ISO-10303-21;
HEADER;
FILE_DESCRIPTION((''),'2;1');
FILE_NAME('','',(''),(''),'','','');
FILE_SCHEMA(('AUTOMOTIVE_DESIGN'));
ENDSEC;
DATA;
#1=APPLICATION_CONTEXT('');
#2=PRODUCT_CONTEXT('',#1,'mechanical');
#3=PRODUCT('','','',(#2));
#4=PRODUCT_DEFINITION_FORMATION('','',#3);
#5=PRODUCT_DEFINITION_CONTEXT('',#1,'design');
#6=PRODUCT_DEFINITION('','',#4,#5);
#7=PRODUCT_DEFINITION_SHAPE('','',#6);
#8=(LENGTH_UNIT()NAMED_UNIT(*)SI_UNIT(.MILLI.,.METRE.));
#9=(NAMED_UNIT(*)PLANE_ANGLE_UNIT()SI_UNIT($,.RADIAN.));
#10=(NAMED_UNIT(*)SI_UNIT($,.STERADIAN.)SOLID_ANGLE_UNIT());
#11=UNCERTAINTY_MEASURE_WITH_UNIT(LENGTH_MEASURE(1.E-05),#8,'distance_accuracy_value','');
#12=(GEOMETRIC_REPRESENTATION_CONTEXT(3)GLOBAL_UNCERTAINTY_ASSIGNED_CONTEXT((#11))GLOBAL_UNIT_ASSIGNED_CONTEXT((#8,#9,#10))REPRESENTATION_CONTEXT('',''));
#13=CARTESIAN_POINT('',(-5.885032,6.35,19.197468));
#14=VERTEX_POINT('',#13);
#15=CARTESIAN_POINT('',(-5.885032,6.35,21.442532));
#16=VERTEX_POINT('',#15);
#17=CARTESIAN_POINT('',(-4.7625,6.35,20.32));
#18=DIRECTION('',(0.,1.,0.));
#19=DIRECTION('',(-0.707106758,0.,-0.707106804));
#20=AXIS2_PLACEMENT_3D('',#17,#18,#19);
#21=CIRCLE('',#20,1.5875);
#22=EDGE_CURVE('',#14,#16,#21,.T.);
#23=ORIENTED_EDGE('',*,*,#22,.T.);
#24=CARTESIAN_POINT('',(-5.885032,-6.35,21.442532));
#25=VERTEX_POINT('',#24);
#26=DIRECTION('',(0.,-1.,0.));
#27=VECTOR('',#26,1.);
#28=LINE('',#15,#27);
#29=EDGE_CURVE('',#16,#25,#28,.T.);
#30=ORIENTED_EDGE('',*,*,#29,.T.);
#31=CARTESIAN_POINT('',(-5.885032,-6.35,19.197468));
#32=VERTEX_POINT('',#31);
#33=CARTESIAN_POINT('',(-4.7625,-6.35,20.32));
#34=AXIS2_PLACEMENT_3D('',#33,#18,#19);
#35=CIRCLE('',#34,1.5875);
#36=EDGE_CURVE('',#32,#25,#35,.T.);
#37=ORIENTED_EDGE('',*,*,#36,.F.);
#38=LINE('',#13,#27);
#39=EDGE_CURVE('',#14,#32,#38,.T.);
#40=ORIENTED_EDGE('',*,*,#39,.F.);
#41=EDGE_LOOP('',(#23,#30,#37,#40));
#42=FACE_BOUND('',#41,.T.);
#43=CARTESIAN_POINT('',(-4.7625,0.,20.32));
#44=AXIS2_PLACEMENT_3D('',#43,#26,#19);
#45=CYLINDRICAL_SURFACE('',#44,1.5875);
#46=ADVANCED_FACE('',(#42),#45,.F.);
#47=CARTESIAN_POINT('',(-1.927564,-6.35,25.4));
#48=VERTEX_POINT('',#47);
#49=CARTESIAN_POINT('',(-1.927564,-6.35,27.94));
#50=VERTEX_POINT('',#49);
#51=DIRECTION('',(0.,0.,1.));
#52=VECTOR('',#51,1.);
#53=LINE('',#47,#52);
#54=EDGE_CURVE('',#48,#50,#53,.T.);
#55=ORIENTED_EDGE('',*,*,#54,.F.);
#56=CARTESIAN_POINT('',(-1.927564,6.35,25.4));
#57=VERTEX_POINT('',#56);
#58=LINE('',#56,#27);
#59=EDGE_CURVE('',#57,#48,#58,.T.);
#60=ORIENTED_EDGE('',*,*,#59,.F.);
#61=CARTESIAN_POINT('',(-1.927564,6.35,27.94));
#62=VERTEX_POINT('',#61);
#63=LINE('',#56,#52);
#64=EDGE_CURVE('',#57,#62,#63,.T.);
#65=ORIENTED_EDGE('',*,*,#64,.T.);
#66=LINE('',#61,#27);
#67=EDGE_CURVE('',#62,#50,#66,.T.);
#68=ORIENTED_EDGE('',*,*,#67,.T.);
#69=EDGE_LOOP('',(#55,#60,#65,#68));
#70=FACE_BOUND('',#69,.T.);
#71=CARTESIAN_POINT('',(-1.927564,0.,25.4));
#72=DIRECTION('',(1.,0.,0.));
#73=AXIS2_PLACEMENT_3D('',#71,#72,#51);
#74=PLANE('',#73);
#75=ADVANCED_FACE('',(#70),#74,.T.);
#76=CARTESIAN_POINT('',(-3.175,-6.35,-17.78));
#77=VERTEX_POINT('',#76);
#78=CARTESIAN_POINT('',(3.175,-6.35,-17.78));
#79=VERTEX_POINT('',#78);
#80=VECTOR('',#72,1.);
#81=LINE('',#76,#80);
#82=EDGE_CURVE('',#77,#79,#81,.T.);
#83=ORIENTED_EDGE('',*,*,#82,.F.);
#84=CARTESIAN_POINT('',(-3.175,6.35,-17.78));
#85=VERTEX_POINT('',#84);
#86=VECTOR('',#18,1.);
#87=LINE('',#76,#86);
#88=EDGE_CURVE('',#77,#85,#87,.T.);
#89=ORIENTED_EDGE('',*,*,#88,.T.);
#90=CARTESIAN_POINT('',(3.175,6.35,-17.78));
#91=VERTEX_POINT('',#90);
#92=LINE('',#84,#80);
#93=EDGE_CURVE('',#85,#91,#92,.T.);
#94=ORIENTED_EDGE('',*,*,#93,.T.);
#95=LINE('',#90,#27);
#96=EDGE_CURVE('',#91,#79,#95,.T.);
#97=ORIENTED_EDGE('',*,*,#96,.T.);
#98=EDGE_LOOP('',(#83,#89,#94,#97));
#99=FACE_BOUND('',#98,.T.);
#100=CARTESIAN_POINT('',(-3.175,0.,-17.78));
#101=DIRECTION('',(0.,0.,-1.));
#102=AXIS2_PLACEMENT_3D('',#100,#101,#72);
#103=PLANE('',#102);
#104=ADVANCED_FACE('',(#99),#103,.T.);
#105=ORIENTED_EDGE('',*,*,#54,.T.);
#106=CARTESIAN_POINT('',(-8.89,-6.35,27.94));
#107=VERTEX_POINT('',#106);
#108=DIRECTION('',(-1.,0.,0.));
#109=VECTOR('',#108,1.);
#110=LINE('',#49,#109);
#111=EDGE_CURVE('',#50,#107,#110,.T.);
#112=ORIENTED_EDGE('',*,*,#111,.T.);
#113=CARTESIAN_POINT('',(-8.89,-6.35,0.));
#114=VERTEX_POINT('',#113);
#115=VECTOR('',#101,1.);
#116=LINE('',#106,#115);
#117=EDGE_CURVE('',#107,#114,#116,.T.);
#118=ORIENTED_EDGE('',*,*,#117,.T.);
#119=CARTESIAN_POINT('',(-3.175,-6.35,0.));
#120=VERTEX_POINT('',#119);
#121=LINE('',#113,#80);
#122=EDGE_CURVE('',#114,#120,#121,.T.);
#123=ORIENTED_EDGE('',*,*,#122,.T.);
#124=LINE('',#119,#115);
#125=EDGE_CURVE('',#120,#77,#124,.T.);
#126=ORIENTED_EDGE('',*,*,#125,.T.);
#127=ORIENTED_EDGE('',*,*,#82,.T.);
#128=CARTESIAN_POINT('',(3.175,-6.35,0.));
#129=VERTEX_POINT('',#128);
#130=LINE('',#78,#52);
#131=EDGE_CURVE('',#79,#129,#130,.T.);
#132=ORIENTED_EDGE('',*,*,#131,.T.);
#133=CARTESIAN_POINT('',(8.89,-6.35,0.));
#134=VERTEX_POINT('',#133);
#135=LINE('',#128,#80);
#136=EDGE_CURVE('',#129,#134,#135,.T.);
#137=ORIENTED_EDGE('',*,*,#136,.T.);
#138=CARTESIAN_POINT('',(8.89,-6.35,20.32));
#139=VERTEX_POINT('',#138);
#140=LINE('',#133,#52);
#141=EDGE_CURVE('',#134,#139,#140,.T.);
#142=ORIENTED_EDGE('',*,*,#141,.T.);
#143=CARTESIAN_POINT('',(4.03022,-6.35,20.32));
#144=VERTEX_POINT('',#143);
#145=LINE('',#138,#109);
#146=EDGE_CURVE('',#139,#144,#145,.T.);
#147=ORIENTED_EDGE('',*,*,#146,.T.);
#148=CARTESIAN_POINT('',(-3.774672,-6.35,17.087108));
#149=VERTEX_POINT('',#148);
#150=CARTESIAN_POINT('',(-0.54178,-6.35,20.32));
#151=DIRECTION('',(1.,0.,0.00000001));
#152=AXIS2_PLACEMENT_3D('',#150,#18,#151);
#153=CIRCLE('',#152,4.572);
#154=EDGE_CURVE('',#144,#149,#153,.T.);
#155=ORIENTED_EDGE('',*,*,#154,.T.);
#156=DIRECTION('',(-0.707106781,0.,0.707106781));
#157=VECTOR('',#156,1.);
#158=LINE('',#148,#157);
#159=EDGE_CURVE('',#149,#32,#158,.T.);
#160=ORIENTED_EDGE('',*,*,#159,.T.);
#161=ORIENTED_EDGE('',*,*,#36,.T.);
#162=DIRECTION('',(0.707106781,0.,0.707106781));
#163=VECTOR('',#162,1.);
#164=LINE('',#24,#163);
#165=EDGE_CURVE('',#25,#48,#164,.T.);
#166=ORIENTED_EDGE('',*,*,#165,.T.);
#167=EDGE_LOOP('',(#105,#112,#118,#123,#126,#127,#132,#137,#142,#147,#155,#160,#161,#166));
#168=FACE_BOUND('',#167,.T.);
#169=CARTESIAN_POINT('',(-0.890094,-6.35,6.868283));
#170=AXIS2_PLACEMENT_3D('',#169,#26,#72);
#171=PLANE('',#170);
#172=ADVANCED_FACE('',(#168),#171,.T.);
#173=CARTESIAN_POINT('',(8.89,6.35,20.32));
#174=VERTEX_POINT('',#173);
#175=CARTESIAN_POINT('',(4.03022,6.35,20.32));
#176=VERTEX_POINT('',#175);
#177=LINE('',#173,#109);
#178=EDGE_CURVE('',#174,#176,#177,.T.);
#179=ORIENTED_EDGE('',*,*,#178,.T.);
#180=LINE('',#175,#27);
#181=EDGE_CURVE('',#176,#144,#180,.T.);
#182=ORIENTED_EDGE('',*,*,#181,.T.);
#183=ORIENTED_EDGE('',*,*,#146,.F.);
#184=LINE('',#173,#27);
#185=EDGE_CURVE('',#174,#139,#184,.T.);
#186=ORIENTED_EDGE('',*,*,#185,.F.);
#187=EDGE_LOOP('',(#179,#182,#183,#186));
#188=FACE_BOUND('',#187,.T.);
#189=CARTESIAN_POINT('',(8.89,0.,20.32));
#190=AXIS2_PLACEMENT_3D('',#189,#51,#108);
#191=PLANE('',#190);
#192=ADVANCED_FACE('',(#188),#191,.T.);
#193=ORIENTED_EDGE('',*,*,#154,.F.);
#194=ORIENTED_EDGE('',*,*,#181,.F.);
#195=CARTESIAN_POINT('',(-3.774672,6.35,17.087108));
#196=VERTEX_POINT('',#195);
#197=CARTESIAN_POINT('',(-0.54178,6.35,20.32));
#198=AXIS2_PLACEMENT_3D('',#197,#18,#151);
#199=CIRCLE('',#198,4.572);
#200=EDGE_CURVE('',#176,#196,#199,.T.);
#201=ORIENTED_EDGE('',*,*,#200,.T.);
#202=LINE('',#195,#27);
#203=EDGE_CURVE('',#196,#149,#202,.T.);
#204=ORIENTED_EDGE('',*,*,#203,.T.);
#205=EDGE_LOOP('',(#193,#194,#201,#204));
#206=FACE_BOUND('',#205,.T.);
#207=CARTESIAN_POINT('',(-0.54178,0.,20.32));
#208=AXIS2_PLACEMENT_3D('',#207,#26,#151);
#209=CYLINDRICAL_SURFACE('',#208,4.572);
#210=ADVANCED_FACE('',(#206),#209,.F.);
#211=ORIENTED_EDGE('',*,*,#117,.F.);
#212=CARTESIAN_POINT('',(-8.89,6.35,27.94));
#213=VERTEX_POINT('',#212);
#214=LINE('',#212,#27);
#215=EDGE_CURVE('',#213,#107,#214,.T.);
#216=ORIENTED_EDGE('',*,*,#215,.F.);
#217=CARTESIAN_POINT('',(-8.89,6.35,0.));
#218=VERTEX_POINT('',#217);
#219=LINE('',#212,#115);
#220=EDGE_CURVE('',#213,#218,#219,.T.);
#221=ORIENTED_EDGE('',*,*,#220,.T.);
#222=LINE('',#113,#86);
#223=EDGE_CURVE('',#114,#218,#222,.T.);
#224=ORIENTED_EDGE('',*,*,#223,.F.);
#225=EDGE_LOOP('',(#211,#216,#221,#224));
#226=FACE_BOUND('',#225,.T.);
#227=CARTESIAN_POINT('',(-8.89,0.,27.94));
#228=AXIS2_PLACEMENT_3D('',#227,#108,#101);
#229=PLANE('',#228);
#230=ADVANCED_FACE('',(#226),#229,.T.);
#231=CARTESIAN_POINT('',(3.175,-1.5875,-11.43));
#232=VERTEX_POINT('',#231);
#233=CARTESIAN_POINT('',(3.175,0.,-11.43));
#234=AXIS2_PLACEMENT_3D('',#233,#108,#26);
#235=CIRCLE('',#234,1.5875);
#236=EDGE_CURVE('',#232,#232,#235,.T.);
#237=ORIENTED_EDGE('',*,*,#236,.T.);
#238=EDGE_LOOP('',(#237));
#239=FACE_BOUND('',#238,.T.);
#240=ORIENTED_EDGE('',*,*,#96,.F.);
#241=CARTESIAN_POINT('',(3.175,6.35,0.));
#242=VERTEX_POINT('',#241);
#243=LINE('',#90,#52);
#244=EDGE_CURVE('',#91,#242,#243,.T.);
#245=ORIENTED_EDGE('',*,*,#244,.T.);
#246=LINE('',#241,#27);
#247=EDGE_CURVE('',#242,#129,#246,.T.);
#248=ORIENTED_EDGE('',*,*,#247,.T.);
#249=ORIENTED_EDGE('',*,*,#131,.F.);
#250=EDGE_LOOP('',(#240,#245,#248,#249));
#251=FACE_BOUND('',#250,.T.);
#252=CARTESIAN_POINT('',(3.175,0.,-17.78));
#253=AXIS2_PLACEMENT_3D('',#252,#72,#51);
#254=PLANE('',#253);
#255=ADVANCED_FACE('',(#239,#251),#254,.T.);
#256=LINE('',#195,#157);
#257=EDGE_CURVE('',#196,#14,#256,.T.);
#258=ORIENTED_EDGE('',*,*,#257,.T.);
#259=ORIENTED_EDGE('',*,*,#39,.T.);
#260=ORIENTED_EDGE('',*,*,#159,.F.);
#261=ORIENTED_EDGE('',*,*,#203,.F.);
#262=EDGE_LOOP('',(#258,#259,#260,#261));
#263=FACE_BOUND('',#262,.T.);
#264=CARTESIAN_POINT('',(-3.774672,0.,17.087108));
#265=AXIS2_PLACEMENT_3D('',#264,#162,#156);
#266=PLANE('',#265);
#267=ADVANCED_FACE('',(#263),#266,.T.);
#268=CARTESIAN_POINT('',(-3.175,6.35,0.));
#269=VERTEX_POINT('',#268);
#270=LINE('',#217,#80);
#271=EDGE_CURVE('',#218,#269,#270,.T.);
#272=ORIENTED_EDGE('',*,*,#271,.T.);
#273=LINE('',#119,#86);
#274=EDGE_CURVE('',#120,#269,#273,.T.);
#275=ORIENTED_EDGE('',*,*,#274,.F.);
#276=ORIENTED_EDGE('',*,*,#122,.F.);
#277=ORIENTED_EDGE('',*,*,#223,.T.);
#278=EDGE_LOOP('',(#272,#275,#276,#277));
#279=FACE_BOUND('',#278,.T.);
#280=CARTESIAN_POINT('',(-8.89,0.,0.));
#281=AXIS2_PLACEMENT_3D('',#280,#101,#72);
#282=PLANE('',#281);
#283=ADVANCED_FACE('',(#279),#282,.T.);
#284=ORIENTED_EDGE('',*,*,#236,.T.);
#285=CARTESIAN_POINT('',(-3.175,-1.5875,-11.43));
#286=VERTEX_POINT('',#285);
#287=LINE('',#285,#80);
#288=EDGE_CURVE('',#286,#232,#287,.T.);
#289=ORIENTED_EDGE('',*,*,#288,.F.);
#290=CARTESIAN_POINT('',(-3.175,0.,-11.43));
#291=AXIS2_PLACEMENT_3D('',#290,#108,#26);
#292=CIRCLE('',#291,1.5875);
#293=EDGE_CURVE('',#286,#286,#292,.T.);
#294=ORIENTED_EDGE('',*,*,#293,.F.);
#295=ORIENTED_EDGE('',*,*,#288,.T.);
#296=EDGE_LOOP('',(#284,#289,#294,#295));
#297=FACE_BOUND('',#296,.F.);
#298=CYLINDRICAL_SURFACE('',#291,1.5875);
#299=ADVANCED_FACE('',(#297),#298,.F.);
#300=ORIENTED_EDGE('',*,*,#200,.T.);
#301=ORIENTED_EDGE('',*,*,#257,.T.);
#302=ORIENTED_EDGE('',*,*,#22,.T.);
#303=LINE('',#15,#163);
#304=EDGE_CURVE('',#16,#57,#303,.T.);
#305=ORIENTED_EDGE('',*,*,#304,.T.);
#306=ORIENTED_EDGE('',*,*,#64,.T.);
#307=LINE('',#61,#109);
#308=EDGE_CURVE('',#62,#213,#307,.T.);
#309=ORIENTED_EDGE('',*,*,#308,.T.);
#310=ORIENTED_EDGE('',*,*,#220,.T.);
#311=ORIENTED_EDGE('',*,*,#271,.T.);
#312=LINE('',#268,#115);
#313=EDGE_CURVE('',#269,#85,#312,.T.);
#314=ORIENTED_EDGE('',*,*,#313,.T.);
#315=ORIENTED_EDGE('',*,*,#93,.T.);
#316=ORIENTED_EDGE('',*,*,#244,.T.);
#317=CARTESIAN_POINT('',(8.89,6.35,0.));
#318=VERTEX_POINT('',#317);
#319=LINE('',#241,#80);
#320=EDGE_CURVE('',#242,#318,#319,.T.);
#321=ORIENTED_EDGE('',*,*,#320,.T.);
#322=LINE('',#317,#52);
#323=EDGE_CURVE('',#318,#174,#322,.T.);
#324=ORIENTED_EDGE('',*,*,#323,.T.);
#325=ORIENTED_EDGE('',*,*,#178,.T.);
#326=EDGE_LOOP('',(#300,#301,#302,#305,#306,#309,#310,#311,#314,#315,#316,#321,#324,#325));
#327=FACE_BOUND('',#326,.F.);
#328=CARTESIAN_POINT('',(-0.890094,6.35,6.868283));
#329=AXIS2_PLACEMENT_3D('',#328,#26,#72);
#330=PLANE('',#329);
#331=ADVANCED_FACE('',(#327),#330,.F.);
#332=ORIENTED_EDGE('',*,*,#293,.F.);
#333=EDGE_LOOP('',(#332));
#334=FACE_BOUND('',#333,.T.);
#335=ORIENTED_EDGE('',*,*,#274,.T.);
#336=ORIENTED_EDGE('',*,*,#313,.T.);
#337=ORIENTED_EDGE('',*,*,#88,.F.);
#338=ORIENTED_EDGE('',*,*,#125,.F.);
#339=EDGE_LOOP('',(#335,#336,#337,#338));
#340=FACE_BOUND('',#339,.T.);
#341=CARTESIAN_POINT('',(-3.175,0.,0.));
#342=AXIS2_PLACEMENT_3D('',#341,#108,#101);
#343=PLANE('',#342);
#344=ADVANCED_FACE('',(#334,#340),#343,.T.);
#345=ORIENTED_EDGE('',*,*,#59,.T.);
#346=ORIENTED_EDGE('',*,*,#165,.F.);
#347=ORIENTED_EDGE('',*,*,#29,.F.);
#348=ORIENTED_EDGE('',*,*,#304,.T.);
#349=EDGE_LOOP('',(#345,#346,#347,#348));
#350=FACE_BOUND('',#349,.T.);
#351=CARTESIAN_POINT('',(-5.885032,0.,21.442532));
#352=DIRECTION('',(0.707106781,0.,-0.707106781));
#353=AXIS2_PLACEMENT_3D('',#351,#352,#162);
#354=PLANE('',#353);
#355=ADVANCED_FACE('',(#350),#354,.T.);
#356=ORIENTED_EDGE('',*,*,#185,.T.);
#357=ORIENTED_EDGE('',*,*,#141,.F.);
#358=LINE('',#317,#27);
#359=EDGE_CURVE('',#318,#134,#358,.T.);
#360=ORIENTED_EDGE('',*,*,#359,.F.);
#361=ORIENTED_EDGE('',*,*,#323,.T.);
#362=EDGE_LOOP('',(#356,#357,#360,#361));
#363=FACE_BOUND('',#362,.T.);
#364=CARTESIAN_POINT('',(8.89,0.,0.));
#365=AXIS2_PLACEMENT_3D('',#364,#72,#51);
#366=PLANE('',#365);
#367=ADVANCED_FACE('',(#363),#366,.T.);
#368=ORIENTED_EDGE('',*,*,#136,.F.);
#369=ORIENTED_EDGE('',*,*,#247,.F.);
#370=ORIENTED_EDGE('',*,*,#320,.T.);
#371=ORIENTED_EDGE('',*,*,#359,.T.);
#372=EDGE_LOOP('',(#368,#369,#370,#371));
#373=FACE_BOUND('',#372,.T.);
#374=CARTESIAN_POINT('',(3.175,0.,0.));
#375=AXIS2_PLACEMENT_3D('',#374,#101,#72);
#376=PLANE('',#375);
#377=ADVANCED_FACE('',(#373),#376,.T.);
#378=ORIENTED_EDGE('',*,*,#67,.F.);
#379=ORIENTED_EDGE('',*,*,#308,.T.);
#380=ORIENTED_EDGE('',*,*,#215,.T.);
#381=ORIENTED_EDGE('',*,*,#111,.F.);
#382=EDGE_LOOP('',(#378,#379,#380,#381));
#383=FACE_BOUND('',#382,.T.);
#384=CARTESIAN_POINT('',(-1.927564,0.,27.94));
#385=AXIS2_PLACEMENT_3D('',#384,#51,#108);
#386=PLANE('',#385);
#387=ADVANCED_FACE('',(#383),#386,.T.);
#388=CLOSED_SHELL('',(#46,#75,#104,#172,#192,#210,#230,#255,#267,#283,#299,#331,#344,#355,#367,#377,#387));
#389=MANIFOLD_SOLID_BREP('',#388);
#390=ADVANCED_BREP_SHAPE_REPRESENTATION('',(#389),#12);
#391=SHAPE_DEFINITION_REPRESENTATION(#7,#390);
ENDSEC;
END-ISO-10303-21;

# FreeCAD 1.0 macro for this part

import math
import FreeCAD as App
import Part
import Sketcher
from FreeCAD import Vector
Q = App.Units.Quantity

doc = App.newDocument("Part")
params = doc.addObject("Spreadsheet::Sheet", "Params")
for row, (alias, value) in enumerate([
    ("sketch1_radius", "0.18 in"),
    ("sketch1_height", "0.7 in"),
    ("sketch1_height2", "0.8 in"),
    ("sketch1_height3", "0.1 in"),
    ("sketch1_height4", "1.1 in"),
    ("pad1_length", "0.5 in"),
    ("sketch2_diameter", "0.125 in"),
], start=1):
    params.set(f"A{row}", alias)
    params.set(f"B{row}", "=" + value)
    params.setAlias(f"B{row}", alias)

body = doc.addObject("PartDesign::Body", "Body")

sketch1 = body.newObject("Sketcher::SketchObject", "Sketch")
sketch1.AttachmentSupport = (doc.getObject("XZ_Plane"), [""])
sketch1.MapMode = "FlatFace"
sketch1.addGeometry(Part.LineSegment(Vector(-3.175, -17.78, 0), Vector(3.175, -17.78, 0)), False)
sketch1.addGeometry(Part.LineSegment(Vector(3.175, -17.78, 0), Vector(3.175, 0, 0)), False)
sketch1.addGeometry(Part.LineSegment(Vector(3.175, 0, 0), Vector(8.89, 0, 0)), False)
sketch1.addGeometry(Part.LineSegment(Vector(8.89, 0, 0), Vector(8.89, 20.32, 0)), False)
sketch1.addGeometry(Part.LineSegment(Vector(8.89, 20.32, 0), Vector(4.03022, 20.32, 0)), False)
sketch1.addGeometry(Part.ArcOfCircle(Part.Circle(Vector(-0.54178, 20.32, 0), Vector(0, 0, 1), 4.572), math.radians(-135.000002), math.radians(0.000001)), False)
sketch1.addGeometry(Part.LineSegment(Vector(-3.774672, 17.087108, 0), Vector(-5.885032, 19.197468, 0)), False)
sketch1.addGeometry(Part.ArcOfCircle(Part.Circle(Vector(-4.7625, 20.32, 0), Vector(0, 0, 1), 1.5875), math.radians(134.999998), math.radians(225.000002)), False)
sketch1.addGeometry(Part.LineSegment(Vector(-5.885032, 21.442532, 0), Vector(-1.927564, 25.4, 0)), False)
sketch1.addGeometry(Part.LineSegment(Vector(-1.927564, 25.4, 0), Vector(-1.927564, 27.94, 0)), False)
sketch1.addGeometry(Part.LineSegment(Vector(-1.927564, 27.94, 0), Vector(-8.89, 27.94, 0)), False)
sketch1.addGeometry(Part.LineSegment(Vector(-8.89, 27.94, 0), Vector(-8.89, 0, 0)), False)
sketch1.addGeometry(Part.LineSegment(Vector(-8.89, 0, 0), Vector(-3.175, 0, 0)), False)
sketch1.addGeometry(Part.LineSegment(Vector(-3.175, 0, 0), Vector(-3.175, -17.78, 0)), False)
sketch1.addConstraint(Sketcher.Constraint("Coincident", 0, 2, 1, 1))
sketch1.addConstraint(Sketcher.Constraint("Coincident", 1, 2, 2, 1))
sketch1.addConstraint(Sketcher.Constraint("Coincident", 2, 2, 3, 1))
sketch1.addConstraint(Sketcher.Constraint("Coincident", 3, 2, 4, 1))
sketch1.addConstraint(Sketcher.Constraint("Coincident", 4, 2, 5, 2))
sketch1.addConstraint(Sketcher.Constraint("Tangent", 5, 1, 6, 1))
sketch1.addConstraint(Sketcher.Constraint("Tangent", 6, 2, 7, 2))
sketch1.addConstraint(Sketcher.Constraint("Tangent", 7, 1, 8, 1))
sketch1.addConstraint(Sketcher.Constraint("Coincident", 8, 2, 9, 1))
sketch1.addConstraint(Sketcher.Constraint("Coincident", 9, 2, 10, 1))
sketch1.addConstraint(Sketcher.Constraint("Coincident", 10, 2, 11, 1))
sketch1.addConstraint(Sketcher.Constraint("Coincident", 11, 2, 12, 1))
sketch1.addConstraint(Sketcher.Constraint("Coincident", 12, 2, 13, 1))
sketch1.addConstraint(Sketcher.Constraint("Coincident", 13, 2, 0, 1))
sketch1.addConstraint(Sketcher.Constraint("Horizontal", 0))
sketch1.addConstraint(Sketcher.Constraint("Vertical", 1))
sketch1.addConstraint(Sketcher.Constraint("Horizontal", 2))
sketch1.addConstraint(Sketcher.Constraint("Vertical", 3))
sketch1.addConstraint(Sketcher.Constraint("Horizontal", 4))
sketch1.addConstraint(Sketcher.Constraint("Vertical", 9))
sketch1.addConstraint(Sketcher.Constraint("Horizontal", 10))
sketch1.addConstraint(Sketcher.Constraint("Vertical", 11))
sketch1.addConstraint(Sketcher.Constraint("Horizontal", 12))
sketch1.addConstraint(Sketcher.Constraint("Vertical", 13))
sketch1.addConstraint(Sketcher.Constraint("Symmetric", 2, 2, 11, 2, -1, 1))
sketch1.addConstraint(Sketcher.Constraint("Symmetric", 1, 2, 12, 2, -2))
sketch1.addConstraint(Sketcher.Constraint("Perpendicular", 6, 8))
sketch1.addConstraint(Sketcher.Constraint("Horizontal", 5, 3, 7, 3))
sketch1.addConstraint(Sketcher.Constraint("Horizontal", 7, 3, 3, 2))
sketch1.addConstraint(Sketcher.Constraint("Vertical", 6, 2, 7, 1))
sketch1.addConstraint(Sketcher.Constraint("Radius", 5, Q("0.18 in")))
sketch1.addConstraint(Sketcher.Constraint("DistanceY", 1, 1, 1, 2, Q("0.7 in")))
sketch1.addConstraint(Sketcher.Constraint("DistanceY", 3, 1, 3, 2, Q("0.8 in")))
sketch1.addConstraint(Sketcher.Constraint("DistanceY", 9, 1, 9, 2, Q("0.1 in")))
sketch1.addConstraint(Sketcher.Constraint("DistanceY", 11, 2, 11, 1, Q("1.1 in")))
sketch1.addConstraint(Sketcher.Constraint("Radius", 7, Q("0.0625 in")))
sketch1.addConstraint(Sketcher.Constraint("DistanceX", 0, 1, 0, 2, Q("0.25 in")))
sketch1.addConstraint(Sketcher.Constraint("DistanceX", 11, 2, 2, 2, Q("0.7 in")))
sketch1.addConstraint(Sketcher.Constraint("DistanceX", 7, 3, -1, 1, Q("0.1875 in")))
sketch1.setExpression("Constraints[30]", "Params.sketch1_radius")
sketch1.setExpression("Constraints[31]", "Params.sketch1_height")
sketch1.setExpression("Constraints[32]", "Params.sketch1_height2")
sketch1.setExpression("Constraints[33]", "Params.sketch1_height3")
sketch1.setExpression("Constraints[34]", "Params.sketch1_height4")
pad1 = body.newObject("PartDesign::Pad", "Pad")
pad1.Profile = sketch1
pad1.setExpression("Length", "Params.pad1_length")
pad1.Midplane = True

sketch2 = body.newObject("Sketcher::SketchObject", "Sketch001")
sketch2.AttachmentSupport = (doc.getObject("YZ_Plane"), [""])
sketch2.MapMode = "FlatFace"
sketch2.AttachmentOffset = App.Placement(Vector(0, 0, -0.125 * 25.4), App.Rotation())
sketch2.addGeometry(Part.Circle(Vector(0, -11.43, 0), Vector(0, 0, 1), 1.5875), False)
sketch2.addConstraint(Sketcher.Constraint("PointOnObject", 0, 3, -2))
sketch2.addConstraint(Sketcher.Constraint("Diameter", 0, Q("0.125 in")))
sketch2.addConstraint(Sketcher.Constraint("DistanceY", 0, 3, -1, 1, Q("0.45 in")))
sketch2.setExpression("Constraints[1]", "Params.sketch2_diameter")
pocket1 = body.newObject("PartDesign::Pocket", "Pocket")
pocket1.Profile = sketch2
pocket1.Type = "ThroughAll"
pocket1.Reversed = True

doc.recompute()
